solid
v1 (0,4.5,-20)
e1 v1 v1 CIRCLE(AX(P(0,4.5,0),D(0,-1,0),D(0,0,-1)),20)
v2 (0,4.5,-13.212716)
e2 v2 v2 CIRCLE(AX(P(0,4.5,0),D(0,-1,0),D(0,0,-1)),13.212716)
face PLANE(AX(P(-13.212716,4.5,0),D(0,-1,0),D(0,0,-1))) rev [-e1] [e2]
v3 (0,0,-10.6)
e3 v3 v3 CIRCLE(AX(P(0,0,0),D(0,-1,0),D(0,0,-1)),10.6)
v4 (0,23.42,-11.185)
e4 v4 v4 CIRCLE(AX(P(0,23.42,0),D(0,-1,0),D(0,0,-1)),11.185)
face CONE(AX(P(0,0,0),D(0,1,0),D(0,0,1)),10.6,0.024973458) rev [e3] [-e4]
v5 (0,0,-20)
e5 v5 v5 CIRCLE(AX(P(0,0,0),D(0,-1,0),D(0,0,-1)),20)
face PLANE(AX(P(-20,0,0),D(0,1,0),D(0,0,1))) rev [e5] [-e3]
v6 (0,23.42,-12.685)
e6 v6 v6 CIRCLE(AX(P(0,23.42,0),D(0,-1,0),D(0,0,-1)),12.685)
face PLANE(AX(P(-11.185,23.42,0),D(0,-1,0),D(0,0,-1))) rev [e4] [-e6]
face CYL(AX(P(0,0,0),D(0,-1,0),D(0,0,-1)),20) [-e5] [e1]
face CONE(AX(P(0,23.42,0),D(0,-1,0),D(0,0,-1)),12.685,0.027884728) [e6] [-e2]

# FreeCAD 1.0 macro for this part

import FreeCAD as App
import Part
import Sketcher
from FreeCAD import Vector

doc = App.newDocument("Part")
body = doc.addObject("PartDesign::Body", "Body")

# Sketch on XY plane
sketch1 = body.newObject("Sketcher::SketchObject", "Sketch")
sketch1.AttachmentSupport = (doc.getObject("XY_Plane"), [""])
sketch1.MapMode = "FlatFace"
sketch1.addGeometry([
    Part.LineSegment(Vector(-10.6, 0, 0), Vector(-11.185, 23.42, 0)),  # 0
    Part.LineSegment(Vector(-11.185, 23.42, 0), Vector(-12.685, 23.42, 0)),  # 1
    Part.LineSegment(Vector(-12.685, 23.42, 0), Vector(-13.212716, 4.5, 0)),  # 2
    Part.LineSegment(Vector(-13.212716, 4.5, 0), Vector(-20, 4.5, 0)),  # 3
    Part.LineSegment(Vector(-20, 4.5, 0), Vector(-20, 0, 0)),  # 4
    Part.LineSegment(Vector(-20, 0, 0), Vector(-10.6, 0, 0)),  # 5
], False)
sketch1.addConstraint([
    Sketcher.Constraint("Coincident", 0, 2, 1, 1),
    Sketcher.Constraint("Coincident", 1, 2, 2, 1),
    Sketcher.Constraint("Coincident", 2, 2, 3, 1),
    Sketcher.Constraint("Coincident", 3, 2, 4, 1),
    Sketcher.Constraint("Coincident", 4, 2, 5, 1),
    Sketcher.Constraint("Coincident", 5, 2, 0, 1),
    Sketcher.Constraint("Horizontal", 1),
    Sketcher.Constraint("Horizontal", 3),
    Sketcher.Constraint("Vertical", 4),
    Sketcher.Constraint("Horizontal", 5),
    Sketcher.Constraint("PointOnObject", 4, 2, -1),
    Sketcher.Constraint("DistanceX", 1, 2, 1, 1, 1.5),
    Sketcher.Constraint("DistanceX", 5, 1, 5, 2, 9.4),
    Sketcher.Constraint("DistanceY", 4, 2, 4, 1, 4.5),
    Sketcher.Constraint("DistanceX", 3, 2, -1, 1, 20.0),
    Sketcher.Constraint("DistanceY", -1, 1, 0, 2, 23.42),
    Sketcher.Constraint("DistanceX", 0, 2, -1, 1, 11.185),
    Sketcher.Constraint("Distance", 2, 18.927358),
])
revolution = body.newObject("PartDesign::Revolution", "Revolution")
revolution.Profile = sketch1
revolution.ReferenceAxis = (sketch1, ["V_Axis"])
revolution.Angle = 360

doc.recompute()
